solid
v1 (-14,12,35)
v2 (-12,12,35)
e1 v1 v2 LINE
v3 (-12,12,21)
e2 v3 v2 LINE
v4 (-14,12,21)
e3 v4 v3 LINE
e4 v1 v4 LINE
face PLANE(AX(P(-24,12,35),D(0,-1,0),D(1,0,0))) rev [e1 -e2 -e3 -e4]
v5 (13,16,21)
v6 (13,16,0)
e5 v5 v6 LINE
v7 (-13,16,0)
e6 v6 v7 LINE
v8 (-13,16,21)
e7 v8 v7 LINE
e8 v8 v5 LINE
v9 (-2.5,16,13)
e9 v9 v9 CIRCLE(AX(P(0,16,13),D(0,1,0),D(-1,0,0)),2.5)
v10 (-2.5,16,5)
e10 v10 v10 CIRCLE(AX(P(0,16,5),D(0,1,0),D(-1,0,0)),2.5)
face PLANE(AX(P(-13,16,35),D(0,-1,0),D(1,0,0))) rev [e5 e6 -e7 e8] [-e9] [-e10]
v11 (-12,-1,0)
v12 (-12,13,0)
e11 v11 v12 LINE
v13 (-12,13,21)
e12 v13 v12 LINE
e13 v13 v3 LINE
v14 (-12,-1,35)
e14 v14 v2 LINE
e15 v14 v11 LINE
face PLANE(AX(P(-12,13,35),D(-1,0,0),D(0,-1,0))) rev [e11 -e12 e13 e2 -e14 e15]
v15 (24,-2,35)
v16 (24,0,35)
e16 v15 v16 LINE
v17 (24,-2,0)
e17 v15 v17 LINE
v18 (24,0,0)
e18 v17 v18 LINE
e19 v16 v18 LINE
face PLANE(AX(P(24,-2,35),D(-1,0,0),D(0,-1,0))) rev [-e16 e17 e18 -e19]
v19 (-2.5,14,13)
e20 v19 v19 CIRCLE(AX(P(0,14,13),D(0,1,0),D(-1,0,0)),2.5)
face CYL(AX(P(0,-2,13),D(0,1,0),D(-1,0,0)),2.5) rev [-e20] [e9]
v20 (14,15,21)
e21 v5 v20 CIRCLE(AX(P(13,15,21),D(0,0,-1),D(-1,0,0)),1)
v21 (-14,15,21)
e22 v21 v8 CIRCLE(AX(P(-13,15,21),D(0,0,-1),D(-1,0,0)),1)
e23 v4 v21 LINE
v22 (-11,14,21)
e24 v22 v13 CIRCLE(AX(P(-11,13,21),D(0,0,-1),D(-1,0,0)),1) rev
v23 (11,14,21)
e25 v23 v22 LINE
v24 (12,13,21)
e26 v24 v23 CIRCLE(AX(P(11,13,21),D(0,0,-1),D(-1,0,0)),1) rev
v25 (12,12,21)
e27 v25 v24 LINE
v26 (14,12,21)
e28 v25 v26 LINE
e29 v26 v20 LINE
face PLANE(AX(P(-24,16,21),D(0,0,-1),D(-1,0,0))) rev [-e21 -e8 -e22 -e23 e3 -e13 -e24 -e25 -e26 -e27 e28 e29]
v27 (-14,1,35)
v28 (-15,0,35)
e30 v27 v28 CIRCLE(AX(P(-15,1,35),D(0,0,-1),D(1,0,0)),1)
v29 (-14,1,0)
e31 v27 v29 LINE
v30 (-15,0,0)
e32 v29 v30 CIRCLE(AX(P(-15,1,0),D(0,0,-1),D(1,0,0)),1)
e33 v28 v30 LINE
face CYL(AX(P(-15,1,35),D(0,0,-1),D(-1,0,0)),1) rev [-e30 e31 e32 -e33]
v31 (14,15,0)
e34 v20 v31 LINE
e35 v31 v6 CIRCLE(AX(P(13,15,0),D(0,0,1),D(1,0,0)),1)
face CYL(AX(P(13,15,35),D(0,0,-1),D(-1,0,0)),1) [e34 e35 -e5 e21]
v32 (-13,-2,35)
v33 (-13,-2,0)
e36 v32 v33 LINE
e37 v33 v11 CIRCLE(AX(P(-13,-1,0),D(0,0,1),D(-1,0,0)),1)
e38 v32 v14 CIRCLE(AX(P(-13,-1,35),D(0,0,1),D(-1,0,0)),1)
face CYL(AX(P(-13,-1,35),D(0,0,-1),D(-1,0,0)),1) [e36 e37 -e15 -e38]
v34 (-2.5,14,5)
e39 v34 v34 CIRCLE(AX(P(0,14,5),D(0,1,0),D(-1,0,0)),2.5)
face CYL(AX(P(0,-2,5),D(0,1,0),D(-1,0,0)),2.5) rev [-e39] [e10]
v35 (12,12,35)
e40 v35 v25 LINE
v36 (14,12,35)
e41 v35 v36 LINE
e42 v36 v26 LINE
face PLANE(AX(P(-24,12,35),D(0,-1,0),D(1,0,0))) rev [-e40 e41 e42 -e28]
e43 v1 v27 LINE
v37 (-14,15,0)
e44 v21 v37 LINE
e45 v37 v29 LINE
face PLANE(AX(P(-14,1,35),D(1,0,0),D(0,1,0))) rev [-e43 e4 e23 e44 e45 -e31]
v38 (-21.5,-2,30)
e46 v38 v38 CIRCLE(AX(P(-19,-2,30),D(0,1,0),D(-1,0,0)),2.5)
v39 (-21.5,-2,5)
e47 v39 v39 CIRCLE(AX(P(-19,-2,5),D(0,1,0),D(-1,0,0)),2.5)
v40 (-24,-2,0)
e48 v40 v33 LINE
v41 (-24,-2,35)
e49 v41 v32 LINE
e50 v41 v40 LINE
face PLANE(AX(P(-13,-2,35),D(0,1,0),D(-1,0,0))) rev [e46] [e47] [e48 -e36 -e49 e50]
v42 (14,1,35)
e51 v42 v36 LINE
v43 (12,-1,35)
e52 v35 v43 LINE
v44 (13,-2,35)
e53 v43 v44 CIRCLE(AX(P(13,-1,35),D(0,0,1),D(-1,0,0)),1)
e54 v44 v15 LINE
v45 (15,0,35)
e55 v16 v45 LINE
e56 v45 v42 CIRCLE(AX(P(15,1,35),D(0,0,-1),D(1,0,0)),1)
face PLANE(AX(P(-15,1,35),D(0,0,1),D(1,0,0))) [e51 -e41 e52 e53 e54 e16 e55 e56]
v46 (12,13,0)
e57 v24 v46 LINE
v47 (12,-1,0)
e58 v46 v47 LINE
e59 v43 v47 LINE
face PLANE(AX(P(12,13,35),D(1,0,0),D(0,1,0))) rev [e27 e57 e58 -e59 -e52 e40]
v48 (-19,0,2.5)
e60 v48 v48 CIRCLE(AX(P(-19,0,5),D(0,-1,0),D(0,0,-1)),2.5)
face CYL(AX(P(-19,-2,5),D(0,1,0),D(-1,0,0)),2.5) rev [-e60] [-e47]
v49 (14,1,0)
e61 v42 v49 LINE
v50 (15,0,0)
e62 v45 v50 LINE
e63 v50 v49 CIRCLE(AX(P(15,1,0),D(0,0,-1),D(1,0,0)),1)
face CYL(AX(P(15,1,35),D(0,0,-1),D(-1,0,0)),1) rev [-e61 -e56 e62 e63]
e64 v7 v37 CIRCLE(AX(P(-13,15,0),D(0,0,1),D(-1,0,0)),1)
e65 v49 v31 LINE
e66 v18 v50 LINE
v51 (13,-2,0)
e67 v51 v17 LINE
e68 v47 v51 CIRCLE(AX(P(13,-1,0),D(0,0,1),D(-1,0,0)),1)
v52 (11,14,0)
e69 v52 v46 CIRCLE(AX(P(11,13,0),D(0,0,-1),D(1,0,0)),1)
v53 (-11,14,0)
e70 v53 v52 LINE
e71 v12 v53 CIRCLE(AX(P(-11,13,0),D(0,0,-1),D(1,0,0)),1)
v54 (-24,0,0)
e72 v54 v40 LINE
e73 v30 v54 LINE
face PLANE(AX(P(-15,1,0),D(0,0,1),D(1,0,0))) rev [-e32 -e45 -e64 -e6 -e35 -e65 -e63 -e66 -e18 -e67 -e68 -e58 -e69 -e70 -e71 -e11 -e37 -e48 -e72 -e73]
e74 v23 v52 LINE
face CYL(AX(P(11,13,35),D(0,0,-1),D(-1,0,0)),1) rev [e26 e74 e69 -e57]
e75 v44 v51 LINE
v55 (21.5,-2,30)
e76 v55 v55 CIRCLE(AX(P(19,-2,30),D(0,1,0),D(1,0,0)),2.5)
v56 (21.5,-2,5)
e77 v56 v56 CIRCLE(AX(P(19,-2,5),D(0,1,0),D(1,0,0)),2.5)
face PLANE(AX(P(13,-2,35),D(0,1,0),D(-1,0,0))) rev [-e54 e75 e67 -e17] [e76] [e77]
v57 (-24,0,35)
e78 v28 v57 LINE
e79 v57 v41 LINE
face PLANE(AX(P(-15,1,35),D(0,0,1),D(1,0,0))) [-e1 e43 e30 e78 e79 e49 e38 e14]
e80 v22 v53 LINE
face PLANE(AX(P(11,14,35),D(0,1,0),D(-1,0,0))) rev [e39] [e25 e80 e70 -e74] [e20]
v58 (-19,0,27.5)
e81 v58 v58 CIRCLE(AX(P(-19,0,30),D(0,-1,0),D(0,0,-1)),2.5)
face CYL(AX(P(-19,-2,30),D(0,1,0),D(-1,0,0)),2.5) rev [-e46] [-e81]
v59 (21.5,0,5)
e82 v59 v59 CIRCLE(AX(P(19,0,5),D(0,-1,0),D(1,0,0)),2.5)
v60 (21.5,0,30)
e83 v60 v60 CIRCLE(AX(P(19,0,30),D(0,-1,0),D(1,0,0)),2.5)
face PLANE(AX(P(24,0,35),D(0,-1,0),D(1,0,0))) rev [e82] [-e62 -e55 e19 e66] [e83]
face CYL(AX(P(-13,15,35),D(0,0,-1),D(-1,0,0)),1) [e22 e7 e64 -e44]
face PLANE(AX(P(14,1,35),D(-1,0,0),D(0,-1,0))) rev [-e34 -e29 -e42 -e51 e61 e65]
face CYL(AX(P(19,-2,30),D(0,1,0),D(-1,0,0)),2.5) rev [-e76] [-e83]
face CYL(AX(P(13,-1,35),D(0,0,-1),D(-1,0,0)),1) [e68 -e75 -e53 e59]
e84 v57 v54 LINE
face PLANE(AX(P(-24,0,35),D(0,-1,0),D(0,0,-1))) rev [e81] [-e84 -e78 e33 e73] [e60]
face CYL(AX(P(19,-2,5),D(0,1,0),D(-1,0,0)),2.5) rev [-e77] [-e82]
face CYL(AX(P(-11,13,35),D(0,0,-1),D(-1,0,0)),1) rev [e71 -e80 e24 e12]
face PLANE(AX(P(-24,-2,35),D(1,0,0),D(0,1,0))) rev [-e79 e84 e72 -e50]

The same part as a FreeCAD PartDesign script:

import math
import FreeCAD as App
import Part
import Sketcher

V = App.Vector


def add_polygon(sketch, points):
    """Adds a closed chain of lines whose ends are joined by coincident constraints."""
    first, n = sketch.GeometryCount, len(points)
    for a, b in zip(points, points[1:] + points[:1]):
        sketch.addGeometry(Part.LineSegment(App.Vector(*a, 0), App.Vector(*b, 0)), False)
    for i in range(n):
        sketch.addConstraint(Sketcher.Constraint("Coincident", first + i, 2, first + (i + 1) % n, 1))

doc = App.newDocument("Part")
body = doc.addObject("PartDesign::Body", "Body")

sketch1 = body.newObject("Sketcher::SketchObject", "Sketch")
sketch1.AttachmentSupport = (doc.getObject("XY_Plane"), [""])
sketch1.MapMode = "FlatFace"
sketch1.addGeometry([
    Part.LineSegment(V(-15, 0, 0), V(-24, 0, 0)),
    Part.LineSegment(V(-24, 0, 0), V(-24, -2, 0)),
    Part.LineSegment(V(-24, -2, 0), V(-13, -2, 0)),
    Part.ArcOfCircle(Part.Circle(V(-13, -1, 0), V(0, 0, 1), 1), math.radians(-90), math.radians(0)),
    Part.LineSegment(V(-12, -1, 0), V(-12, 13, 0)),
    Part.ArcOfCircle(Part.Circle(V(-11, 13, 0), V(0, 0, 1), 1), math.radians(90), math.radians(180)),
    Part.LineSegment(V(-11, 14, 0), V(11, 14, 0)),
    Part.ArcOfCircle(Part.Circle(V(11, 13, 0), V(0, 0, 1), 1), math.radians(0), math.radians(90)),
    Part.LineSegment(V(12, 13, 0), V(12, -1, 0)),
    Part.ArcOfCircle(Part.Circle(V(13, -1, 0), V(0, 0, 1), 1), math.radians(-180), math.radians(-90)),
    Part.LineSegment(V(13, -2, 0), V(24, -2, 0)),
    Part.LineSegment(V(24, -2, 0), V(24, 0, 0)),
    Part.LineSegment(V(24, 0, 0), V(15, 0, 0)),
    Part.ArcOfCircle(Part.Circle(V(15, 1, 0), V(0, 0, 1), 1), math.radians(-180), math.radians(-90)),
    Part.LineSegment(V(14, 1, 0), V(14, 15, 0)),
    Part.ArcOfCircle(Part.Circle(V(13, 15, 0), V(0, 0, 1), 1), math.radians(0), math.radians(90)),
    Part.LineSegment(V(13, 16, 0), V(-13, 16, 0)),
    Part.ArcOfCircle(Part.Circle(V(-13, 15, 0), V(0, 0, 1), 1), math.radians(90), math.radians(180)),
    Part.LineSegment(V(-14, 15, 0), V(-14, 1, 0)),
    Part.ArcOfCircle(Part.Circle(V(-15, 1, 0), V(0, 0, 1), 1), math.radians(-90), math.radians(0)),
], False)
sketch1.addConstraint([
    Sketcher.Constraint("Coincident", 0, 2, 1, 1),
    Sketcher.Constraint("Coincident", 1, 2, 2, 1),
    Sketcher.Constraint("Tangent", 2, 2, 3, 1),
    Sketcher.Constraint("Tangent", 3, 2, 4, 1),
    Sketcher.Constraint("Tangent", 4, 2, 5, 2),
    Sketcher.Constraint("Tangent", 5, 1, 6, 1),
    Sketcher.Constraint("Tangent", 6, 2, 7, 2),
    Sketcher.Constraint("Tangent", 7, 1, 8, 1),
    Sketcher.Constraint("Tangent", 8, 2, 9, 1),
    Sketcher.Constraint("Tangent", 9, 2, 10, 1),
    Sketcher.Constraint("Coincident", 10, 2, 11, 1),
    Sketcher.Constraint("Coincident", 11, 2, 12, 1),
    Sketcher.Constraint("Tangent", 12, 2, 13, 2),
    Sketcher.Constraint("Tangent", 13, 1, 14, 1),
    Sketcher.Constraint("Tangent", 14, 2, 15, 1),
    Sketcher.Constraint("Tangent", 15, 2, 16, 1),
    Sketcher.Constraint("Tangent", 16, 2, 17, 1),
    Sketcher.Constraint("Tangent", 17, 2, 18, 1),
    Sketcher.Constraint("Tangent", 18, 2, 19, 2),
    Sketcher.Constraint("Tangent", 19, 1, 0, 1),
    Sketcher.Constraint("Horizontal", 0),
    Sketcher.Constraint("Vertical", 1),
    Sketcher.Constraint("Horizontal", 2),
    Sketcher.Constraint("Vertical", 4),
    Sketcher.Constraint("Horizontal", 6),
    Sketcher.Constraint("Vertical", 8),
    Sketcher.Constraint("Horizontal", 10),
    Sketcher.Constraint("Vertical", 11),
    Sketcher.Constraint("Horizontal", 12),
    Sketcher.Constraint("Vertical", 14),
    Sketcher.Constraint("Horizontal", 16),
    Sketcher.Constraint("Vertical", 18),
    Sketcher.Constraint("Equal", 3, 5),
    Sketcher.Constraint("Equal", 5, 7),
    Sketcher.Constraint("Equal", 7, 9),
    Sketcher.Constraint("Equal", 9, 13),
    Sketcher.Constraint("Equal", 13, 15),
    Sketcher.Constraint("Equal", 15, 17),
    Sketcher.Constraint("Equal", 17, 19),
    Sketcher.Constraint("Symmetric", 0, 2, 11, 2, -1, 1),
    Sketcher.Constraint("Symmetric", 3, 3, 9, 3, -2),
    Sketcher.Constraint("Symmetric", 13, 3, 19, 3, -2),
    Sketcher.Constraint("Vertical", 9, 3, 15, 3),
    Sketcher.Constraint("Equal", 8, 14),
    Sketcher.Constraint("Radius", 3, 1.0),
    Sketcher.Constraint("DistanceX", 0, 2, 0, 1, 9.0),
    Sketcher.Constraint("DistanceX", 6, 1, 6, 2, 22.0),
    Sketcher.Constraint("DistanceY", 1, 2, 1, 1, 2.0),
    Sketcher.Constraint("DistanceY", 4, 1, 4, 2, 14.0),
])
pad1 = body.newObject("PartDesign::Pad", "Pad")
pad1.Profile = sketch1
pad1.Length = 35

sketch2 = body.newObject("Sketcher::SketchObject", "Sketch001")
sketch2.AttachmentSupport = (doc.getObject("YZ_Plane"), [""])
sketch2.MapMode = "FlatFace"
sketch2.AttachmentOffset = App.Placement(V(0, 0, 14), App.Rotation())
add_polygon(sketch2, [(16, 35), (12, 35), (12, 21), (16, 21)])
sketch2.addConstraint([
    Sketcher.Constraint("Horizontal", 0),
    Sketcher.Constraint("Vertical", 1),
    Sketcher.Constraint("Horizontal", 2),
    Sketcher.Constraint("Vertical", 3),
    Sketcher.Constraint("DistanceX", 0, 2, 0, 1, 4.0),
    Sketcher.Constraint("DistanceY", 1, 2, 1, 1, 14.0),
    Sketcher.Constraint("DistanceX", -1, 1, 0, 2, 12.0),
    Sketcher.Constraint("DistanceY", -1, 1, 0, 2, 35.0),
])
pocket1 = body.newObject("PartDesign::Pocket", "Pocket")
pocket1.Profile = sketch2
pocket1.Type = "ThroughAll"

sketch3 = body.newObject("Sketcher::SketchObject", "Sketch002")
sketch3.AttachmentSupport = (doc.getObject("XZ_Plane"), [""])
sketch3.MapMode = "FlatFace"
sketch3.addGeometry([
    Part.Circle(V(-19, 5, 0), V(0, 0, 1), 2.5),
    Part.Circle(V(-19, 30, 0), V(0, 0, 1), 2.5),
    Part.Circle(V(19, 30, 0), V(0, 0, 1), 2.5),
    Part.Circle(V(19, 5, 0), V(0, 0, 1), 2.5),
    Part.Circle(V(0, 13, 0), V(0, 0, 1), 2.5),
    Part.Circle(V(0, 5, 0), V(0, 0, 1), 2.5),
], False)
sketch3.addConstraint([
    Sketcher.Constraint("Equal", 0, 1),
    Sketcher.Constraint("Equal", 1, 2),
    Sketcher.Constraint("Equal", 2, 3),
    Sketcher.Constraint("Equal", 3, 4),
    Sketcher.Constraint("Equal", 4, 5),
    Sketcher.Constraint("Symmetric", 1, 3, 2, 3, -2),
    Sketcher.Constraint("Symmetric", 0, 3, 3, 3, -2),
    Sketcher.Constraint("PointOnObject", 4, 3, -2),
    Sketcher.Constraint("PointOnObject", 5, 3, -2),
    Sketcher.Constraint("Horizontal", 3, 3, 5, 3),
    Sketcher.Constraint("Vertical", 0, 3, 1, 3),
    Sketcher.Constraint("Diameter", 0, 5.0),
    Sketcher.Constraint("DistanceX", 0, 3, -1, 1, 19.0),
    Sketcher.Constraint("DistanceY", -1, 1, 0, 3, 5.0),
    Sketcher.Constraint("DistanceY", -1, 1, 1, 3, 30.0),
    Sketcher.Constraint("DistanceY", -1, 1, 4, 3, 13.0),
])
pocket2 = body.newObject("PartDesign::Pocket", "Pocket001")
pocket2.Profile = sketch3
pocket2.Type = "ThroughAll"
pocket2.Midplane = True

doc.recompute()
